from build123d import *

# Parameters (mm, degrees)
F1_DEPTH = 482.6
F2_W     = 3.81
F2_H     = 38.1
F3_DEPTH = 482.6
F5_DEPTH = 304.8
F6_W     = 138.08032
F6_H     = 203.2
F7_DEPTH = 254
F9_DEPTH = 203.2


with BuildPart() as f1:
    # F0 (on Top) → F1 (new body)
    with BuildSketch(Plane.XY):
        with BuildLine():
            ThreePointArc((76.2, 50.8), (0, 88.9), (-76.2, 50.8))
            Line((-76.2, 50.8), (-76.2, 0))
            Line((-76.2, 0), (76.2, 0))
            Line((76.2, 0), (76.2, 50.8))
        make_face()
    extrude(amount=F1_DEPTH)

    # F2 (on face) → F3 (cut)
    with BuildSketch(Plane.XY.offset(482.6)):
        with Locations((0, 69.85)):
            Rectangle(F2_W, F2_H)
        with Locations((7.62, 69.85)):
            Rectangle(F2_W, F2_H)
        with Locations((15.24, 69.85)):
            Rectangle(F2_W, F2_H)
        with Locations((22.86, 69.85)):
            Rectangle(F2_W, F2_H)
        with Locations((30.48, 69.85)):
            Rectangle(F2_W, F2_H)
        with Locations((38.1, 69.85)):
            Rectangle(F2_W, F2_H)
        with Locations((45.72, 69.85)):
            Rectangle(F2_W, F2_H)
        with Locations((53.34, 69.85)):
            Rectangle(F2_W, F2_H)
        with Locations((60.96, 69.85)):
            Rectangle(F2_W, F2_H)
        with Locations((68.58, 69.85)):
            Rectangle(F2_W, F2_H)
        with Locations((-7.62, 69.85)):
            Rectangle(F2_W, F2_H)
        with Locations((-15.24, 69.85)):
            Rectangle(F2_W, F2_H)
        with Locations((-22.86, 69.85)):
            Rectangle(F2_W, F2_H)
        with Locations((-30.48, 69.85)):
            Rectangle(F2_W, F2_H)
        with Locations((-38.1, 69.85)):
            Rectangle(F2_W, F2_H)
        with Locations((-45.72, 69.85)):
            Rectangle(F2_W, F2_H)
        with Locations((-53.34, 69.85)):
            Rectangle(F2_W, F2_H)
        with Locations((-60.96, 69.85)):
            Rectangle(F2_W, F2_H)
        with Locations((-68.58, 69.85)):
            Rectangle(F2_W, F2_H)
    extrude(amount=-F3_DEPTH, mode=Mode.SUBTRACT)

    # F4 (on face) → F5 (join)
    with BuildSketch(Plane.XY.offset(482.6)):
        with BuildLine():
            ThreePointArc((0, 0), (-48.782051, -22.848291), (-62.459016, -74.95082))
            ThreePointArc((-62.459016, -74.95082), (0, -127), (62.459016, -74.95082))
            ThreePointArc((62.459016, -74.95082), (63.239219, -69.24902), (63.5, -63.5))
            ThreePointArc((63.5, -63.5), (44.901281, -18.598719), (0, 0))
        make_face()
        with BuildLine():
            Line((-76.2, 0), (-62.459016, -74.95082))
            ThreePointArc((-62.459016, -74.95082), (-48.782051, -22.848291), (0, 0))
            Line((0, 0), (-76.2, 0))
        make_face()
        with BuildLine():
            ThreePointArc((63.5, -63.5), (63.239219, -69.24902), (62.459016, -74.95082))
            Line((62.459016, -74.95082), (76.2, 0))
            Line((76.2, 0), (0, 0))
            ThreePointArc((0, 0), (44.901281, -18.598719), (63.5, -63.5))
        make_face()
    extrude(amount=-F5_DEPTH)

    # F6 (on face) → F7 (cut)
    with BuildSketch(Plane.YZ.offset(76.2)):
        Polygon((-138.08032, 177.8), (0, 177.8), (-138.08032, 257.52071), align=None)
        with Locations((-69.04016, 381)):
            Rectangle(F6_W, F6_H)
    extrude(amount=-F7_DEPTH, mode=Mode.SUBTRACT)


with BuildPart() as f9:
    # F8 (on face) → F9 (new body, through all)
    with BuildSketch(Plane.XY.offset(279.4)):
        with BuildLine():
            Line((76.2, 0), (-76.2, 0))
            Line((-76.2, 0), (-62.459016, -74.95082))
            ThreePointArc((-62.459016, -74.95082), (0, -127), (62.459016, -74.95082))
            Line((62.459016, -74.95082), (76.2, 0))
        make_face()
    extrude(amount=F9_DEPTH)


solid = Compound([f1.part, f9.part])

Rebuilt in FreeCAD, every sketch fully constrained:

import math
import FreeCAD as App
import Part
import Sketcher

V = App.Vector
Q = App.Units.Quantity

doc = App.newDocument("Part")
body = doc.addObject("PartDesign::Body", "Body")

sketch1 = doc.addObject("Sketcher::SketchObject", "Sketch")
body.addObject(sketch1)
sketch1.AttachmentSupport = (doc.XY_Plane, [""])
sketch1.MapMode = "FlatFace"
sketch1.addGeometry([
    Part.ArcOfCircle(Part.Circle(V(0, -6, 0), V(0, 0, 1), 95), math.radians(37), math.radians(143)),
    Part.LineSegment(V(-76, 51, 0), V(-76, 0, 0)),
    Part.LineSegment(V(-76, 0, 0), V(76, 0, 0)),
    Part.LineSegment(V(76, 0, 0), V(76, 51, 0)),
], False)
sketch1.addConstraint([
    Sketcher.Constraint("Coincident", 0, 2, 1, 1),
    Sketcher.Constraint("Coincident", 1, 2, 2, 1),
    Sketcher.Constraint("Coincident", 2, 2, 3, 1),
    Sketcher.Constraint("Coincident", 3, 2, 0, 1),
    Sketcher.Constraint("Vertical", 1),
    Sketcher.Constraint("Horizontal", 2),
    Sketcher.Constraint("Vertical", 3),
    Sketcher.Constraint("Symmetric", 1, 2, 2, 2, -1, 1),
    Sketcher.Constraint("PointOnObject", 0, 3, -2),
    Sketcher.Constraint("DistanceX", 2, 1, 2, 2, Q("6 in")),
    Sketcher.Constraint("DistanceY", 1, 2, 1, 1, Q("2 in")),
    Sketcher.Constraint("Radius", 0, Q("3.75 in")),
])
pad1 = doc.addObject("PartDesign::Pad", "Pad")
body.addObject(pad1)
pad1.Profile = sketch1
pad1.Length = Q("19 in")

sketch2 = doc.addObject("Sketcher::SketchObject", "Sketch001")
body.addObject(sketch2)
sketch2.AttachmentSupport = (doc.XY_Plane, [""])
sketch2.MapMode = "FlatFace"
sketch2.AttachmentOffset = App.Placement(V(0, 0, 19 * 25.4), App.Rotation())
sketch2.addGeometry([
    Part.LineSegment(V(-1.9, 88.9, 0), V(-1.9, 50.8, 0)),
    Part.LineSegment(V(-1.9, 50.8, 0), V(1.9, 50.8, 0)),
    Part.LineSegment(V(1.9, 50.8, 0), V(1.9, 88.9, 0)),
    Part.LineSegment(V(1.9, 88.9, 0), V(-1.9, 88.9, 0)),
    Part.LineSegment(V(5.7, 88.9, 0), V(5.7, 50.8, 0)),
    Part.LineSegment(V(5.7, 50.8, 0), V(9.5, 50.8, 0)),
    Part.LineSegment(V(9.5, 50.8, 0), V(9.5, 88.9, 0)),
    Part.LineSegment(V(9.5, 88.9, 0), V(5.7, 88.9, 0)),
    Part.LineSegment(V(13.3, 88.9, 0), V(13.3, 50.8, 0)),
    Part.LineSegment(V(13.3, 50.8, 0), V(17.1, 50.8, 0)),
    Part.LineSegment(V(17.1, 50.8, 0), V(17.1, 88.9, 0)),
    Part.LineSegment(V(17.1, 88.9, 0), V(13.3, 88.9, 0)),
    Part.LineSegment(V(21, 88.9, 0), V(21, 50.8, 0)),
    Part.LineSegment(V(21, 50.8, 0), V(24.8, 50.8, 0)),
    Part.LineSegment(V(24.8, 50.8, 0), V(24.8, 88.9, 0)),
    Part.LineSegment(V(24.8, 88.9, 0), V(21, 88.9, 0)),
    Part.LineSegment(V(28.6, 88.9, 0), V(28.6, 50.8, 0)),
    Part.LineSegment(V(28.6, 50.8, 0), V(32.4, 50.8, 0)),
    Part.LineSegment(V(32.4, 50.8, 0), V(32.4, 88.9, 0)),
    Part.LineSegment(V(32.4, 88.9, 0), V(28.6, 88.9, 0)),
    Part.LineSegment(V(36.2, 88.9, 0), V(36.2, 50.8, 0)),
    Part.LineSegment(V(36.2, 50.8, 0), V(40, 50.8, 0)),
    Part.LineSegment(V(40, 50.8, 0), V(40, 88.9, 0)),
    Part.LineSegment(V(40, 88.9, 0), V(36.2, 88.9, 0)),
    Part.LineSegment(V(43.8, 88.9, 0), V(43.8, 50.8, 0)),
    Part.LineSegment(V(43.8, 50.8, 0), V(47.6, 50.8, 0)),
    Part.LineSegment(V(47.6, 50.8, 0), V(47.6, 88.9, 0)),
    Part.LineSegment(V(47.6, 88.9, 0), V(43.8, 88.9, 0)),
    Part.LineSegment(V(51.4, 88.9, 0), V(51.4, 50.8, 0)),
    Part.LineSegment(V(51.4, 50.8, 0), V(55.2, 50.8, 0)),
    Part.LineSegment(V(55.2, 50.8, 0), V(55.2, 88.9, 0)),
    Part.LineSegment(V(55.2, 88.9, 0), V(51.4, 88.9, 0)),
    Part.LineSegment(V(59.1, 88.9, 0), V(59.1, 50.8, 0)),
    Part.LineSegment(V(59.1, 50.8, 0), V(62.9, 50.8, 0)),
    Part.LineSegment(V(62.9, 50.8, 0), V(62.9, 88.9, 0)),
    Part.LineSegment(V(62.9, 88.9, 0), V(59.1, 88.9, 0)),
    Part.LineSegment(V(66.7, 88.9, 0), V(66.7, 50.8, 0)),
    Part.LineSegment(V(66.7, 50.8, 0), V(70.5, 50.8, 0)),
    Part.LineSegment(V(70.5, 50.8, 0), V(70.5, 88.9, 0)),
    Part.LineSegment(V(70.5, 88.9, 0), V(66.7, 88.9, 0)),
    Part.LineSegment(V(-9.5, 88.9, 0), V(-9.5, 50.8, 0)),
    Part.LineSegment(V(-9.5, 50.8, 0), V(-5.7, 50.8, 0)),
    Part.LineSegment(V(-5.7, 50.8, 0), V(-5.7, 88.9, 0)),
    Part.LineSegment(V(-5.7, 88.9, 0), V(-9.5, 88.9, 0)),
    Part.LineSegment(V(-17.1, 88.9, 0), V(-17.1, 50.8, 0)),
    Part.LineSegment(V(-17.1, 50.8, 0), V(-13.3, 50.8, 0)),
    Part.LineSegment(V(-13.3, 50.8, 0), V(-13.3, 88.9, 0)),
    Part.LineSegment(V(-13.3, 88.9, 0), V(-17.1, 88.9, 0)),
    Part.LineSegment(V(-24.8, 88.9, 0), V(-24.8, 50.8, 0)),
    Part.LineSegment(V(-24.8, 50.8, 0), V(-21, 50.8, 0)),
    Part.LineSegment(V(-21, 50.8, 0), V(-21, 88.9, 0)),
    Part.LineSegment(V(-21, 88.9, 0), V(-24.8, 88.9, 0)),
    Part.LineSegment(V(-32.4, 88.9, 0), V(-32.4, 50.8, 0)),
    Part.LineSegment(V(-32.4, 50.8, 0), V(-28.6, 50.8, 0)),
    Part.LineSegment(V(-28.6, 50.8, 0), V(-28.6, 88.9, 0)),
    Part.LineSegment(V(-28.6, 88.9, 0), V(-32.4, 88.9, 0)),
    Part.LineSegment(V(-40, 88.9, 0), V(-40, 50.8, 0)),
    Part.LineSegment(V(-40, 50.8, 0), V(-36.2, 50.8, 0)),
    Part.LineSegment(V(-36.2, 50.8, 0), V(-36.2, 88.9, 0)),
    Part.LineSegment(V(-36.2, 88.9, 0), V(-40, 88.9, 0)),
    Part.LineSegment(V(-47.6, 88.9, 0), V(-47.6, 50.8, 0)),
    Part.LineSegment(V(-47.6, 50.8, 0), V(-43.8, 50.8, 0)),
    Part.LineSegment(V(-43.8, 50.8, 0), V(-43.8, 88.9, 0)),
    Part.LineSegment(V(-43.8, 88.9, 0), V(-47.6, 88.9, 0)),
    Part.LineSegment(V(-55.2, 88.9, 0), V(-55.2, 50.8, 0)),
    Part.LineSegment(V(-55.2, 50.8, 0), V(-51.4, 50.8, 0)),
    Part.LineSegment(V(-51.4, 50.8, 0), V(-51.4, 88.9, 0)),
    Part.LineSegment(V(-51.4, 88.9, 0), V(-55.2, 88.9, 0)),
    Part.LineSegment(V(-62.9, 88.9, 0), V(-62.9, 50.8, 0)),
    Part.LineSegment(V(-62.9, 50.8, 0), V(-59.1, 50.8, 0)),
    Part.LineSegment(V(-59.1, 50.8, 0), V(-59.1, 88.9, 0)),
    Part.LineSegment(V(-59.1, 88.9, 0), V(-62.9, 88.9, 0)),
    Part.LineSegment(V(-70.5, 88.9, 0), V(-70.5, 50.8, 0)),
    Part.LineSegment(V(-70.5, 50.8, 0), V(-66.7, 50.8, 0)),
    Part.LineSegment(V(-66.7, 50.8, 0), V(-66.7, 88.9, 0)),
    Part.LineSegment(V(-66.7, 88.9, 0), V(-70.5, 88.9, 0)),
], False)
sketch2.addConstraint([
    Sketcher.Constraint("Coincident", 0, 2, 1, 1),
    Sketcher.Constraint("Coincident", 1, 2, 2, 1),
    Sketcher.Constraint("Coincident", 2, 2, 3, 1),
    Sketcher.Constraint("Coincident", 3, 2, 0, 1),
    Sketcher.Constraint("Coincident", 4, 2, 5, 1),
    Sketcher.Constraint("Coincident", 5, 2, 6, 1),
    Sketcher.Constraint("Coincident", 6, 2, 7, 1),
    Sketcher.Constraint("Coincident", 7, 2, 4, 1),
    Sketcher.Constraint("Coincident", 8, 2, 9, 1),
    Sketcher.Constraint("Coincident", 9, 2, 10, 1),
    Sketcher.Constraint("Coincident", 10, 2, 11, 1),
    Sketcher.Constraint("Coincident", 11, 2, 8, 1),
    Sketcher.Constraint("Coincident", 12, 2, 13, 1),
    Sketcher.Constraint("Coincident", 13, 2, 14, 1),
    Sketcher.Constraint("Coincident", 14, 2, 15, 1),
    Sketcher.Constraint("Coincident", 15, 2, 12, 1),
    Sketcher.Constraint("Coincident", 16, 2, 17, 1),
    Sketcher.Constraint("Coincident", 17, 2, 18, 1),
    Sketcher.Constraint("Coincident", 18, 2, 19, 1),
    Sketcher.Constraint("Coincident", 19, 2, 16, 1),
    Sketcher.Constraint("Coincident", 20, 2, 21, 1),
    Sketcher.Constraint("Coincident", 21, 2, 22, 1),
    Sketcher.Constraint("Coincident", 22, 2, 23, 1),
    Sketcher.Constraint("Coincident", 23, 2, 20, 1),
    Sketcher.Constraint("Coincident", 24, 2, 25, 1),
    Sketcher.Constraint("Coincident", 25, 2, 26, 1),
    Sketcher.Constraint("Coincident", 26, 2, 27, 1),
    Sketcher.Constraint("Coincident", 27, 2, 24, 1),
    Sketcher.Constraint("Coincident", 28, 2, 29, 1),
    Sketcher.Constraint("Coincident", 29, 2, 30, 1),
    Sketcher.Constraint("Coincident", 30, 2, 31, 1),
    Sketcher.Constraint("Coincident", 31, 2, 28, 1),
    Sketcher.Constraint("Coincident", 32, 2, 33, 1),
    Sketcher.Constraint("Coincident", 33, 2, 34, 1),
    Sketcher.Constraint("Coincident", 34, 2, 35, 1),
    Sketcher.Constraint("Coincident", 35, 2, 32, 1),
    Sketcher.Constraint("Coincident", 36, 2, 37, 1),
    Sketcher.Constraint("Coincident", 37, 2, 38, 1),
    Sketcher.Constraint("Coincident", 38, 2, 39, 1),
    Sketcher.Constraint("Coincident", 39, 2, 36, 1),
    Sketcher.Constraint("Coincident", 40, 2, 41, 1),
    Sketcher.Constraint("Coincident", 41, 2, 42, 1),
    Sketcher.Constraint("Coincident", 42, 2, 43, 1),
    Sketcher.Constraint("Coincident", 43, 2, 40, 1),
    Sketcher.Constraint("Coincident", 44, 2, 45, 1),
    Sketcher.Constraint("Coincident", 45, 2, 46, 1),
    Sketcher.Constraint("Coincident", 46, 2, 47, 1),
    Sketcher.Constraint("Coincident", 47, 2, 44, 1),
    Sketcher.Constraint("Coincident", 48, 2, 49, 1),
    Sketcher.Constraint("Coincident", 49, 2, 50, 1),
    Sketcher.Constraint("Coincident", 50, 2, 51, 1),
    Sketcher.Constraint("Coincident", 51, 2, 48, 1),
    Sketcher.Constraint("Coincident", 52, 2, 53, 1),
    Sketcher.Constraint("Coincident", 53, 2, 54, 1),
    Sketcher.Constraint("Coincident", 54, 2, 55, 1),
    Sketcher.Constraint("Coincident", 55, 2, 52, 1),
    Sketcher.Constraint("Coincident", 56, 2, 57, 1),
    Sketcher.Constraint("Coincident", 57, 2, 58, 1),
    Sketcher.Constraint("Coincident", 58, 2, 59, 1),
    Sketcher.Constraint("Coincident", 59, 2, 56, 1),
    Sketcher.Constraint("Coincident", 60, 2, 61, 1),
    Sketcher.Constraint("Coincident", 61, 2, 62, 1),
    Sketcher.Constraint("Coincident", 62, 2, 63, 1),
    Sketcher.Constraint("Coincident", 63, 2, 60, 1),
    Sketcher.Constraint("Coincident", 64, 2, 65, 1),
    Sketcher.Constraint("Coincident", 65, 2, 66, 1),
    Sketcher.Constraint("Coincident", 66, 2, 67, 1),
    Sketcher.Constraint("Coincident", 67, 2, 64, 1),
    Sketcher.Constraint("Coincident", 68, 2, 69, 1),
    Sketcher.Constraint("Coincident", 69, 2, 70, 1),
    Sketcher.Constraint("Coincident", 70, 2, 71, 1),
    Sketcher.Constraint("Coincident", 71, 2, 68, 1),
    Sketcher.Constraint("Coincident", 72, 2, 73, 1),
    Sketcher.Constraint("Coincident", 73, 2, 74, 1),
    Sketcher.Constraint("Coincident", 74, 2, 75, 1),
    Sketcher.Constraint("Coincident", 75, 2, 72, 1),
    Sketcher.Constraint("Vertical", 0),
    Sketcher.Constraint("Horizontal", 1),
    Sketcher.Constraint("Vertical", 2),
    Sketcher.Constraint("Horizontal", 3),
    Sketcher.Constraint("Vertical", 4),
    Sketcher.Constraint("Horizontal", 5),
    Sketcher.Constraint("Vertical", 6),
    Sketcher.Constraint("Horizontal", 7),
    Sketcher.Constraint("Vertical", 8),
    Sketcher.Constraint("Horizontal", 9),
    Sketcher.Constraint("Vertical", 10),
    Sketcher.Constraint("Horizontal", 11),
    Sketcher.Constraint("Vertical", 12),
    Sketcher.Constraint("Horizontal", 13),
    Sketcher.Constraint("Vertical", 14),
    Sketcher.Constraint("Horizontal", 15),
    Sketcher.Constraint("Vertical", 16),
    Sketcher.Constraint("Horizontal", 17),
    Sketcher.Constraint("Vertical", 18),
    Sketcher.Constraint("Horizontal", 19),
    Sketcher.Constraint("Vertical", 20),
    Sketcher.Constraint("Horizontal", 21),
    Sketcher.Constraint("Vertical", 22),
    Sketcher.Constraint("Horizontal", 23),
    Sketcher.Constraint("Vertical", 24),
    Sketcher.Constraint("Horizontal", 25),
    Sketcher.Constraint("Vertical", 26),
    Sketcher.Constraint("Horizontal", 27),
    Sketcher.Constraint("Vertical", 28),
    Sketcher.Constraint("Horizontal", 29),
    Sketcher.Constraint("Vertical", 30),
    Sketcher.Constraint("Horizontal", 31),
    Sketcher.Constraint("Vertical", 32),
    Sketcher.Constraint("Horizontal", 33),
    Sketcher.Constraint("Vertical", 34),
    Sketcher.Constraint("Horizontal", 35),
    Sketcher.Constraint("Vertical", 36),
    Sketcher.Constraint("Horizontal", 37),
    Sketcher.Constraint("Vertical", 38),
    Sketcher.Constraint("Horizontal", 39),
    Sketcher.Constraint("Vertical", 40),
    Sketcher.Constraint("Horizontal", 41),
    Sketcher.Constraint("Vertical", 42),
    Sketcher.Constraint("Horizontal", 43),
    Sketcher.Constraint("Vertical", 44),
    Sketcher.Constraint("Horizontal", 45),
    Sketcher.Constraint("Vertical", 46),
    Sketcher.Constraint("Horizontal", 47),
    Sketcher.Constraint("Vertical", 48),
    Sketcher.Constraint("Horizontal", 49),
    Sketcher.Constraint("Vertical", 50),
    Sketcher.Constraint("Horizontal", 51),
    Sketcher.Constraint("Vertical", 52),
    Sketcher.Constraint("Horizontal", 53),
    Sketcher.Constraint("Vertical", 54),
    Sketcher.Constraint("Horizontal", 55),
    Sketcher.Constraint("Vertical", 56),
    Sketcher.Constraint("Horizontal", 57),
    Sketcher.Constraint("Vertical", 58),
    Sketcher.Constraint("Horizontal", 59),
    Sketcher.Constraint("Vertical", 60),
    Sketcher.Constraint("Horizontal", 61),
    Sketcher.Constraint("Vertical", 62),
    Sketcher.Constraint("Horizontal", 63),
    Sketcher.Constraint("Vertical", 64),
    Sketcher.Constraint("Horizontal", 65),
    Sketcher.Constraint("Vertical", 66),
    Sketcher.Constraint("Horizontal", 67),
    Sketcher.Constraint("Vertical", 68),
    Sketcher.Constraint("Horizontal", 69),
    Sketcher.Constraint("Vertical", 70),
    Sketcher.Constraint("Horizontal", 71),
    Sketcher.Constraint("Vertical", 72),
    Sketcher.Constraint("Horizontal", 73),
    Sketcher.Constraint("Vertical", 74),
    Sketcher.Constraint("Horizontal", 75),
    Sketcher.Constraint("Symmetric", 5, 2, 40, 2, -2),
    Sketcher.Constraint("Symmetric", 7, 2, 42, 2, -2),
    Sketcher.Constraint("Symmetric", 9, 2, 44, 2, -2),
    Sketcher.Constraint("Symmetric", 11, 2, 46, 2, -2),
    Sketcher.Constraint("Symmetric", 13, 2, 48, 2, -2),
    Sketcher.Constraint("Symmetric", 15, 2, 50, 2, -2),
    Sketcher.Constraint("Symmetric", 17, 2, 52, 2, -2),
    Sketcher.Constraint("Symmetric", 19, 2, 54, 2, -2),
    Sketcher.Constraint("Symmetric", 21, 2, 56, 2, -2),
    Sketcher.Constraint("Symmetric", 23, 2, 58, 2, -2),
    Sketcher.Constraint("Symmetric", 25, 2, 60, 2, -2),
    Sketcher.Constraint("Symmetric", 27, 2, 62, 2, -2),
    Sketcher.Constraint("Symmetric", 29, 2, 64, 2, -2),
    Sketcher.Constraint("Symmetric", 31, 2, 66, 2, -2),
    Sketcher.Constraint("Symmetric", 33, 2, 68, 2, -2),
    Sketcher.Constraint("Symmetric", 35, 2, 70, 2, -2),
    Sketcher.Constraint("Symmetric", 37, 2, 72, 2, -2),
    Sketcher.Constraint("Symmetric", 39, 2, 74, 2, -2),
    Sketcher.Constraint("Horizontal", 1, 2, 4, 2),
    Sketcher.Constraint("Horizontal", 3, 2, 6, 2),
    Sketcher.Constraint("Horizontal", 5, 2, 8, 2),
    Sketcher.Constraint("Horizontal", 7, 2, 10, 2),
    Sketcher.Constraint("Horizontal", 9, 2, 12, 2),
    Sketcher.Constraint("Horizontal", 11, 2, 14, 2),
    Sketcher.Constraint("Horizontal", 13, 2, 16, 2),
    Sketcher.Constraint("Horizontal", 15, 2, 18, 2),
    Sketcher.Constraint("Horizontal", 17, 2, 20, 2),
    Sketcher.Constraint("Horizontal", 19, 2, 22, 2),
    Sketcher.Constraint("Horizontal", 21, 2, 24, 2),
    Sketcher.Constraint("Horizontal", 23, 2, 26, 2),
    Sketcher.Constraint("Horizontal", 25, 2, 28, 2),
    Sketcher.Constraint("Horizontal", 27, 2, 30, 2),
    Sketcher.Constraint("Horizontal", 29, 2, 32, 2),
    Sketcher.Constraint("Horizontal", 31, 2, 34, 2),
    Sketcher.Constraint("Horizontal", 33, 2, 36, 2),
    Sketcher.Constraint("Horizontal", 35, 2, 38, 2),
    Sketcher.Constraint("Equal", 3, 5),
    Sketcher.Constraint("Equal", 7, 9),
    Sketcher.Constraint("Equal", 11, 13),
    Sketcher.Constraint("Equal", 15, 17),
    Sketcher.Constraint("Equal", 19, 21),
    Sketcher.Constraint("Equal", 23, 25),
    Sketcher.Constraint("Equal", 27, 29),
    Sketcher.Constraint("Equal", 31, 33),
    Sketcher.Constraint("Equal", 35, 37),
    Sketcher.Constraint("DistanceY", 0, 2, 0, 1, Q("1.5 in")),
    Sketcher.Constraint("DistanceY", -1, 1, 0, 2, Q("2 in")),
    Sketcher.Constraint("DistanceX", 1, 1, 1, 2, Q("0.15 in")),
    Sketcher.Constraint("DistanceX", 0, 2, -1, 1, Q("0.075 in")),
    Sketcher.Constraint("DistanceX", -1, 1, 4, 2, Q("0.225 in")),
    Sketcher.Constraint("DistanceX", -1, 1, 8, 2, Q("0.525 in")),
    Sketcher.Constraint("DistanceX", -1, 1, 12, 2, Q("0.825 in")),
    Sketcher.Constraint("DistanceX", -1, 1, 16, 2, Q("1.125 in")),
    Sketcher.Constraint("DistanceX", -1, 1, 20, 2, Q("1.425 in")),
    Sketcher.Constraint("DistanceX", -1, 1, 24, 2, Q("1.725 in")),
    Sketcher.Constraint("DistanceX", -1, 1, 28, 2, Q("2.025 in")),
    Sketcher.Constraint("DistanceX", -1, 1, 32, 2, Q("2.325 in")),
    Sketcher.Constraint("DistanceX", -1, 1, 36, 2, Q("2.625 in")),
])
pocket1 = doc.addObject("PartDesign::Pocket", "Pocket")
body.addObject(pocket1)
pocket1.Profile = sketch2
pocket1.Length = Q("19 in")

sketch3 = doc.addObject("Sketcher::SketchObject", "Sketch002")
body.addObject(sketch3)
sketch3.AttachmentSupport = (doc.XY_Plane, [""])
sketch3.MapMode = "FlatFace"
sketch3.AttachmentOffset = App.Placement(V(0, 0, 19 * 25.4), App.Rotation())
sketch3.addGeometry([
    Part.ArcOfCircle(Part.Circle(V(0, -64, 0), V(0, 0, 1), 63), math.radians(-170), math.radians(-10)),
    Part.LineSegment(V(62, -75, 0), V(76, 0, 0)),
    Part.LineSegment(V(76, 0, 0), V(-76, 0, 0)),
    Part.LineSegment(V(-76, 0, 0), V(-62, -75, 0)),
], False)
sketch3.addConstraint([
    Sketcher.Constraint("Tangent", 0, 2, 1, 1),
    Sketcher.Constraint("Coincident", 1, 2, 2, 1),
    Sketcher.Constraint("Coincident", 2, 2, 3, 1),
    Sketcher.Constraint("Tangent", 3, 2, 0, 1),
    Sketcher.Constraint("Horizontal", 2),
    Sketcher.Constraint("Symmetric", 1, 2, 2, 2, -1, 1),
    Sketcher.Constraint("PointOnObject", 0, 3, -2),
    Sketcher.Constraint("Radius", 0, Q("2.5 in")),
    Sketcher.Constraint("DistanceX", 2, 2, 2, 1, Q("6 in")),
    Sketcher.Constraint("Distance", 1, Q("3 in")),
])
pad2 = doc.addObject("PartDesign::Pad", "Pad001")
body.addObject(pad2)
pad2.Profile = sketch3
pad2.Length = Q("12 in")
pad2.Reversed = True

sketch4 = doc.addObject("Sketcher::SketchObject", "Sketch003")
body.addObject(sketch4)
sketch4.AttachmentSupport = (doc.YZ_Plane, [""])
sketch4.MapMode = "FlatFace"
sketch4.AttachmentOffset = App.Placement(V(0, 0, 3 * 25.4), App.Rotation())
sketch4.addGeometry([
    Part.LineSegment(V(-138, 178, 0), V(0, 178, 0)),
    Part.LineSegment(V(0, 178, 0), V(-138, 258, 0)),
    Part.LineSegment(V(-138, 258, 0), V(-138, 178, 0)),
    Part.LineSegment(V(-138, 483, 0), V(-138, 279, 0)),
    Part.LineSegment(V(-138, 279, 0), V(0, 279, 0)),
    Part.LineSegment(V(0, 279, 0), V(0, 483, 0)),
    Part.LineSegment(V(0, 483, 0), V(-138, 483, 0)),
], False)
sketch4.addConstraint([
    Sketcher.Constraint("Coincident", 0, 2, 1, 1),
    Sketcher.Constraint("Coincident", 1, 2, 2, 1),
    Sketcher.Constraint("Coincident", 2, 2, 0, 1),
    Sketcher.Constraint("Coincident", 3, 2, 4, 1),
    Sketcher.Constraint("Coincident", 4, 2, 5, 1),
    Sketcher.Constraint("Coincident", 5, 2, 6, 1),
    Sketcher.Constraint("Coincident", 6, 2, 3, 1),
    Sketcher.Constraint("Horizontal", 0),
    Sketcher.Constraint("Vertical", 2),
    Sketcher.Constraint("Vertical", 3),
    Sketcher.Constraint("Horizontal", 4),
    Sketcher.Constraint("Vertical", 5),
    Sketcher.Constraint("Horizontal", 6),
    Sketcher.Constraint("PointOnObject", 0, 2, -2),
    Sketcher.Constraint("PointOnObject", 4, 2, -2),
    Sketcher.Constraint("Vertical", 2, 2, 3, 2),
    Sketcher.Constraint("DistanceY", 3, 2, 3, 1, Q("8 in")),
    Sketcher.Constraint("DistanceY", -1, 1, 0, 2, Q("7 in")),
    Sketcher.Constraint("DistanceY", -1, 1, 3, 2, Q("11 in")),
    Sketcher.Constraint("Angle", 1, Q("150 deg")),
    Sketcher.Constraint("DistanceX", 0, 1, 0, 2, 138.08032),
])
pocket2 = doc.addObject("PartDesign::Pocket", "Pocket001")
body.addObject(pocket2)
pocket2.Profile = sketch4
pocket2.Length = Q("10 in")
body2 = doc.addObject("PartDesign::Body", "Body001")

sketch5 = doc.addObject("Sketcher::SketchObject", "Sketch004")
body2.addObject(sketch5)
sketch5.AttachmentSupport = (doc.getObject("XY_Plane001"), [""])
sketch5.MapMode = "FlatFace"
sketch5.AttachmentOffset = App.Placement(V(0, 0, 11 * 25.4), App.Rotation())
sketch5.addGeometry([
    Part.LineSegment(V(76, 0, 0), V(-76, 0, 0)),
    Part.LineSegment(V(-76, 0, 0), V(-62, -75, 0)),
    Part.ArcOfCircle(Part.Circle(V(0, -64, 0), V(0, 0, 1), 63), math.radians(-170), math.radians(-10)),
    Part.LineSegment(V(62, -75, 0), V(76, 0, 0)),
], False)
sketch5.addConstraint([
    Sketcher.Constraint("Coincident", 0, 2, 1, 1),
    Sketcher.Constraint("Tangent", 1, 2, 2, 1),
    Sketcher.Constraint("Tangent", 2, 2, 3, 1),
    Sketcher.Constraint("Coincident", 3, 2, 0, 1),
    Sketcher.Constraint("Horizontal", 0),
    Sketcher.Constraint("Symmetric", 0, 2, 3, 2, -1, 1),
    Sketcher.Constraint("PointOnObject", 2, 3, -2),
    Sketcher.Constraint("Radius", 2, Q("2.5 in")),
    Sketcher.Constraint("DistanceX", 0, 2, 0, 1, Q("6 in")),
    Sketcher.Constraint("Distance", 1, Q("3 in")),
])
pad3 = doc.addObject("PartDesign::Pad", "Pad002")
body2.addObject(pad3)
pad3.Profile = sketch5
pad3.Length = Q("8 in")

doc.recompute()
